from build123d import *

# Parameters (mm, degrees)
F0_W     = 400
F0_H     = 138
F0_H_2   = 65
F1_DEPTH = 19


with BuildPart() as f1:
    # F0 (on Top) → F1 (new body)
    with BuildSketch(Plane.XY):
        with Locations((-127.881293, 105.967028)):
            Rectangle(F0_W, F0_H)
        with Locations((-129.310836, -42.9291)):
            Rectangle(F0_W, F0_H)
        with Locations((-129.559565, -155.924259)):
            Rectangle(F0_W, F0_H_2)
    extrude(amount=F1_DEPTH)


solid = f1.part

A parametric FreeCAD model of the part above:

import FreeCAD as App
import Part
import Sketcher
Q = App.Units.Quantity


def add_polygon(sketch, points):
    """Adds a closed chain of lines whose ends are joined by coincident constraints."""
    first, n = sketch.GeometryCount, len(points)
    for a, b in zip(points, points[1:] + points[:1]):
        sketch.addGeometry(Part.LineSegment(App.Vector(*a, 0), App.Vector(*b, 0)), False)
    for i in range(n):
        sketch.addConstraint(Sketcher.Constraint("Coincident", first + i, 2, first + (i + 1) % n, 1))

doc = App.newDocument("Part")
body = doc.addObject("PartDesign::Body", "Body")
body.AllowCompound = True

sketch1 = body.newObject("Sketcher::SketchObject", "Sketch")
sketch1.AttachmentSupport = (doc.getObject("XY_Plane"), [""])
sketch1.MapMode = "FlatFace"
add_polygon(sketch1, [(-328, 175), (-328, 37), (72, 37), (72, 175)])
add_polygon(sketch1, [(-329, 26), (-329, -112), (71, -112), (71, 26)])
add_polygon(sketch1, [(-330, -123), (-330, -188), (70, -188), (70, -123)])
sketch1.addConstraint(Sketcher.Constraint("Vertical", 0))
sketch1.addConstraint(Sketcher.Constraint("Horizontal", 1))
sketch1.addConstraint(Sketcher.Constraint("Vertical", 2))
sketch1.addConstraint(Sketcher.Constraint("Horizontal", 3))
sketch1.addConstraint(Sketcher.Constraint("Vertical", 4))
sketch1.addConstraint(Sketcher.Constraint("Horizontal", 5))
sketch1.addConstraint(Sketcher.Constraint("Vertical", 6))
sketch1.addConstraint(Sketcher.Constraint("Horizontal", 7))
sketch1.addConstraint(Sketcher.Constraint("Vertical", 8))
sketch1.addConstraint(Sketcher.Constraint("Horizontal", 9))
sketch1.addConstraint(Sketcher.Constraint("Vertical", 10))
sketch1.addConstraint(Sketcher.Constraint("Horizontal", 11))
sketch1.addConstraint(Sketcher.Constraint("Equal", 3, 5))
sketch1.addConstraint(Sketcher.Constraint("Equal", 7, 9))
sketch1.addConstraint(Sketcher.Constraint("Equal", 2, 4))
sketch1.addConstraint(Sketcher.Constraint("DistanceX", 1, 1, 1, 2, Q("400 mm")))
sketch1.addConstraint(Sketcher.Constraint("DistanceY", 0, 2, 0, 1, Q("138 mm")))
sketch1.addConstraint(Sketcher.Constraint("DistanceY", 8, 2, 8, 1, Q("65 mm")))
sketch1.addConstraint(Sketcher.Constraint("DistanceY", 4, 2, -1, 1, Q("111.9291 mm")))
sketch1.addConstraint(Sketcher.Constraint("DistanceY", -1, 1, 2, 2, Q("174.967028 mm")))
sketch1.addConstraint(Sketcher.Constraint("DistanceY", 8, 2, -1, 1, Q("188.424259 mm")))
sketch1.addConstraint(Sketcher.Constraint("DistanceX", 8, 2, 4, 2, Q("0.248729 mm")))
sketch1.addConstraint(Sketcher.Constraint("DistanceX", 8, 2, 0, 2, Q("1.678272 mm")))
sketch1.addConstraint(Sketcher.Constraint("DistanceX", 0, 2, -1, 1, Q("327.881293 mm")))
pad1 = body.newObject("PartDesign::Pad", "Pad")
pad1.Profile = sketch1
pad1.Length = 19

doc.recompute()
